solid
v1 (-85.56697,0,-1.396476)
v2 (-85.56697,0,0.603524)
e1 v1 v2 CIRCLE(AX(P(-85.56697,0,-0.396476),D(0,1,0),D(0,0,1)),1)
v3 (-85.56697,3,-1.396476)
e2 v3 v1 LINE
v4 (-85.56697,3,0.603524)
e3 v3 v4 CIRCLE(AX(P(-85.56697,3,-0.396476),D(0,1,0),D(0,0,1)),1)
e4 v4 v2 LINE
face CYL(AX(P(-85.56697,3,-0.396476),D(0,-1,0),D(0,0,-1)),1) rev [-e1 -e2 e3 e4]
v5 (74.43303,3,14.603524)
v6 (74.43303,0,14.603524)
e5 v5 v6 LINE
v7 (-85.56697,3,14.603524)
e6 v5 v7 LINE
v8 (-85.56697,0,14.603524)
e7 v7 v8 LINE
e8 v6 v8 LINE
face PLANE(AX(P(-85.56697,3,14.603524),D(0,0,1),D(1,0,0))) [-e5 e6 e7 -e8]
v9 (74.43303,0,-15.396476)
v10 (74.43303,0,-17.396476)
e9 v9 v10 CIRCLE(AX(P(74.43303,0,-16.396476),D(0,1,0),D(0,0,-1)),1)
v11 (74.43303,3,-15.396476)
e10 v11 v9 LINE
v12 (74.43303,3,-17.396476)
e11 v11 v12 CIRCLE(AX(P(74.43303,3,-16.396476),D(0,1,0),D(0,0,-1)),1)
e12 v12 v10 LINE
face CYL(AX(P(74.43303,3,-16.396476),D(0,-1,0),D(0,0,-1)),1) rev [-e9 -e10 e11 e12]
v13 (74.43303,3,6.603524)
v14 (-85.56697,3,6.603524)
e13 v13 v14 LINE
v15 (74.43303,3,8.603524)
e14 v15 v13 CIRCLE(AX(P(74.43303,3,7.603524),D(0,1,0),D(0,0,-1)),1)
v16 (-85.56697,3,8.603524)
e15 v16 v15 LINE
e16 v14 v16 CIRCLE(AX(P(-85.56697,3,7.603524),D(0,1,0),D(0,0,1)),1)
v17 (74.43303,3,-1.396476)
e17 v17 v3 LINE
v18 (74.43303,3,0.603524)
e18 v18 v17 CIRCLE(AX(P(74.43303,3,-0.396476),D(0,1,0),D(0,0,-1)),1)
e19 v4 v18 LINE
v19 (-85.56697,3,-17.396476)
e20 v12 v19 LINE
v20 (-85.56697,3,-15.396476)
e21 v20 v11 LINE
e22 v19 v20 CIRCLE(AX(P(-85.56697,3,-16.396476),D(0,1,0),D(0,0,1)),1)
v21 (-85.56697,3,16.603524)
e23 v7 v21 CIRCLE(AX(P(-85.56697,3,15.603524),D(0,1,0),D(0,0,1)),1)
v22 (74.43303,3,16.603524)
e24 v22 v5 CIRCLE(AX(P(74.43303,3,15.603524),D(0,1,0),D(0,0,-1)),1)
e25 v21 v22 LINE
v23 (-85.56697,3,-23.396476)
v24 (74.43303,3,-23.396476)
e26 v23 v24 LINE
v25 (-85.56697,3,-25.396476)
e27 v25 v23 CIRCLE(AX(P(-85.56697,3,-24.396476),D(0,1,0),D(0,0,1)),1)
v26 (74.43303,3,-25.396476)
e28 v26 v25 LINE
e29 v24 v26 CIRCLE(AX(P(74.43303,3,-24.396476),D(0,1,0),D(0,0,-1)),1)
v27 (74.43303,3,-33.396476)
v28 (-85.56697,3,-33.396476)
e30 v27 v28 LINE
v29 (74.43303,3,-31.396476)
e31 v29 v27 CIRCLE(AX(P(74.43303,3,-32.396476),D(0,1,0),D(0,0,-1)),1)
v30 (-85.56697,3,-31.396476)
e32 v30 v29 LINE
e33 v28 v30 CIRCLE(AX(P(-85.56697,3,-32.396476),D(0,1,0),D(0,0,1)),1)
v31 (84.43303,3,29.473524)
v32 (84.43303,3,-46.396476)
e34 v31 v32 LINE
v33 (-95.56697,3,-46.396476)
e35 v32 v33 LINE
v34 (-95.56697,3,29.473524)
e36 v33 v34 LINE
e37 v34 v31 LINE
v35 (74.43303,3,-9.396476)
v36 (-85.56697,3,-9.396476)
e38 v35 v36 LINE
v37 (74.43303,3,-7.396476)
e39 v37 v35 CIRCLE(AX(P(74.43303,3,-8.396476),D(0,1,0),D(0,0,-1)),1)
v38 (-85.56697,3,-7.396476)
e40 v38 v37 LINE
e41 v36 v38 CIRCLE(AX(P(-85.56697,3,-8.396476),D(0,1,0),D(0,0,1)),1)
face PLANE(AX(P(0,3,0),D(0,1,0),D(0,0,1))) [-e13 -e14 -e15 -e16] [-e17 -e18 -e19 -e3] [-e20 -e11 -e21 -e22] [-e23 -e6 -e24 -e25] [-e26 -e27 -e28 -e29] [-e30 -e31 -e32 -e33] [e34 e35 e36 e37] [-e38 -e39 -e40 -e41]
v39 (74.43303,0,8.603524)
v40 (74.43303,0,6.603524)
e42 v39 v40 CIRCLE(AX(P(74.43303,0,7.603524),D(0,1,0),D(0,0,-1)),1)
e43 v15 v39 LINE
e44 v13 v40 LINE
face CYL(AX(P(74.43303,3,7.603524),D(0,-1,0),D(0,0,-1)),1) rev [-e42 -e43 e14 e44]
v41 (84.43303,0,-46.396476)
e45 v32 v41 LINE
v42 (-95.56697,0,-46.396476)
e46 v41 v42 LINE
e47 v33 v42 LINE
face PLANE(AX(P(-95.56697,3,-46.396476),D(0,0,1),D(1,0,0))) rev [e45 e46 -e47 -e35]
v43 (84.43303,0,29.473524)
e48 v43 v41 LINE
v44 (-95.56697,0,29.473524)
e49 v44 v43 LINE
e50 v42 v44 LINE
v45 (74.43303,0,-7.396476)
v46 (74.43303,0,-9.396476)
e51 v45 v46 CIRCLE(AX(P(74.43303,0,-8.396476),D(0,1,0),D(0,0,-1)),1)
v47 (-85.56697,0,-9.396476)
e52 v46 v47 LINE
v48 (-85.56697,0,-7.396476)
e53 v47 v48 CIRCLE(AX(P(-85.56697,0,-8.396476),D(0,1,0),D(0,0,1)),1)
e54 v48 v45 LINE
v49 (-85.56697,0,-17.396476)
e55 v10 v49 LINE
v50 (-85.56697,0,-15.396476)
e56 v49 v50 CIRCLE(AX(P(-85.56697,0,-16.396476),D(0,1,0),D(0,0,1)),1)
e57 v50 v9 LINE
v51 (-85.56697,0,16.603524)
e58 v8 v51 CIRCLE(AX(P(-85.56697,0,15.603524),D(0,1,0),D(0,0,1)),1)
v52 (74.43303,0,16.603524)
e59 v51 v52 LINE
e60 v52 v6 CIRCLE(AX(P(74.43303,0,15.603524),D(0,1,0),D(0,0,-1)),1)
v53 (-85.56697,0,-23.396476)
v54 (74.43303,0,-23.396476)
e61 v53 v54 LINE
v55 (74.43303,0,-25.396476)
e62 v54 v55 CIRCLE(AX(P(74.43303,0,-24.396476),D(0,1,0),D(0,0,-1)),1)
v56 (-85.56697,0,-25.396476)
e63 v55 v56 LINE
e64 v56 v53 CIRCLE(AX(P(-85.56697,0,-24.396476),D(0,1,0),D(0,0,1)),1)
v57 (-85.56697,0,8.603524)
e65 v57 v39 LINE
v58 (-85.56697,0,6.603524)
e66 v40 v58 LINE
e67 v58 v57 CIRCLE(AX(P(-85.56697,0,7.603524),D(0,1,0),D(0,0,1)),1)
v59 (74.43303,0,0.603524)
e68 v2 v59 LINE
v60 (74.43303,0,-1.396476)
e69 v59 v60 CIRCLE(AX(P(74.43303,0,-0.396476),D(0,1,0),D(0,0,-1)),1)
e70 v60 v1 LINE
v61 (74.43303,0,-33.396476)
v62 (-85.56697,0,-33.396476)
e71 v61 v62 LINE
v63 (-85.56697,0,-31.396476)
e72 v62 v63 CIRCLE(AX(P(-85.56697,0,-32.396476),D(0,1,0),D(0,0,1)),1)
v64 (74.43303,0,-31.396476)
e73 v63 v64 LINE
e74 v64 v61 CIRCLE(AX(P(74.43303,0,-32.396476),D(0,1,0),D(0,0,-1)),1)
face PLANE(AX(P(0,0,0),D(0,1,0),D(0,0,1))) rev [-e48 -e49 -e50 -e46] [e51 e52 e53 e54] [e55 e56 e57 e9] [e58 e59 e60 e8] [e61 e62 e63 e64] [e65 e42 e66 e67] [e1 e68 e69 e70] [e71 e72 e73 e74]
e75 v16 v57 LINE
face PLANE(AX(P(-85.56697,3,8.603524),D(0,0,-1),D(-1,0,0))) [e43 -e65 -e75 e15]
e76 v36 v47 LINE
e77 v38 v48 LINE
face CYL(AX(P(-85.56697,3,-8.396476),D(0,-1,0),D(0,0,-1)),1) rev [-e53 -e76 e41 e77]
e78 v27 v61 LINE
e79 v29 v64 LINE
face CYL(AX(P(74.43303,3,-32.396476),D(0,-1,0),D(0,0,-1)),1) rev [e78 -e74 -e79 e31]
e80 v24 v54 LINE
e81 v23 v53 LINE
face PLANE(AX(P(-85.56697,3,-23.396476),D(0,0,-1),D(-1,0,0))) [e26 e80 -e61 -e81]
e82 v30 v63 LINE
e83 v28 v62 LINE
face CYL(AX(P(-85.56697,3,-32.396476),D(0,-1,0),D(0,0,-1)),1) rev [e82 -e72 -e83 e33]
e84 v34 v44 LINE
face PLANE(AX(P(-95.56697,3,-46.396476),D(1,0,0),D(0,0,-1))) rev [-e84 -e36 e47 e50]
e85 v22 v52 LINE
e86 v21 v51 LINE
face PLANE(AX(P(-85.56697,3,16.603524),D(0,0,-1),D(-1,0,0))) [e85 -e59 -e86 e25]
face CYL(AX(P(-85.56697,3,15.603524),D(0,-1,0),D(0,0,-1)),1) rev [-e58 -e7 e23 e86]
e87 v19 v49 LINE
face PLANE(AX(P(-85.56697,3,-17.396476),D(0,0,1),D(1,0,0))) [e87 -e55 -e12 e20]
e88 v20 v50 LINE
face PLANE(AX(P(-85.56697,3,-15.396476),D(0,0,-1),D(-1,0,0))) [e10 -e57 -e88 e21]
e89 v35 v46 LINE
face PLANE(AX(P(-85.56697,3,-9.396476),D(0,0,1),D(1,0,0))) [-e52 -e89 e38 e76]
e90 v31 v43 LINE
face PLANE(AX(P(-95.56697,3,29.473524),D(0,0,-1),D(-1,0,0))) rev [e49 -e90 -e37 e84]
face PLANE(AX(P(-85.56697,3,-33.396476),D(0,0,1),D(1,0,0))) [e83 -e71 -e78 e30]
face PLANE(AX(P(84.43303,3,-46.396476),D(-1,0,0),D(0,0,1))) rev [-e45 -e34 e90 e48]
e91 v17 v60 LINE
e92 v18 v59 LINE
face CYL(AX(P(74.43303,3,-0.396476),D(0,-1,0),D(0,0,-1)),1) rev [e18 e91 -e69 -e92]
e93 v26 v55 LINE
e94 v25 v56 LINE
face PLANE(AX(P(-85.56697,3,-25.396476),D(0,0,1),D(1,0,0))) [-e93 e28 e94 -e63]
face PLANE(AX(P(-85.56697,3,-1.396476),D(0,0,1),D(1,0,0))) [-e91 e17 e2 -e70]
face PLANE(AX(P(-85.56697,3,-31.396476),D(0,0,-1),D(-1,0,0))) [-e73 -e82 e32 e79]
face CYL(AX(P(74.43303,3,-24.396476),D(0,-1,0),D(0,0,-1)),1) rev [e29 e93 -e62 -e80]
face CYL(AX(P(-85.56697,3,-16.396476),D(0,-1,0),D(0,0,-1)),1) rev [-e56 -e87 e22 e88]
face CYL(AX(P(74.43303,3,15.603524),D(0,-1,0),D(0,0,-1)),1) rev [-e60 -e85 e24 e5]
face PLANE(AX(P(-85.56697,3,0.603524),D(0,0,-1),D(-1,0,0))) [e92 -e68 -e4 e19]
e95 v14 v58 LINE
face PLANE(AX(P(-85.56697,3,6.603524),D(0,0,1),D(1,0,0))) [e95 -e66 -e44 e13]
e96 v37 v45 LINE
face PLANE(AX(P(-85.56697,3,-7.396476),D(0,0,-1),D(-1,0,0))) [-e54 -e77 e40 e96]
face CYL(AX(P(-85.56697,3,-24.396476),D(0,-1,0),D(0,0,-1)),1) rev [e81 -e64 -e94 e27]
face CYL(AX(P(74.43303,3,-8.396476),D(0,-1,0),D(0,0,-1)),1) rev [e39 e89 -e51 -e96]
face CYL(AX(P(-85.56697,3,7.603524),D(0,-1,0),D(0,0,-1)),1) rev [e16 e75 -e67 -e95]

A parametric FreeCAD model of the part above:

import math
import FreeCAD as App
import Part
import Sketcher
from FreeCAD import Vector
Q = App.Units.Quantity

doc = App.newDocument("Part")
body = doc.addObject("PartDesign::Body", "Body")

sketch1 = body.newObject("Sketcher::SketchObject", "Sketch")
sketch1.AttachmentSupport = (doc.getObject("XZ_Plane"), [""])
sketch1.MapMode = "FlatFace"
sketch1.addGeometry(Part.LineSegment(Vector(-95.6, -46.4, 0), Vector(-95.6, 29.5, 0)), False)
sketch1.addGeometry(Part.LineSegment(Vector(-95.6, 29.5, 0), Vector(84.4, 29.5, 0)), False)
sketch1.addGeometry(Part.LineSegment(Vector(84.4, 29.5, 0), Vector(84.4, -46.4, 0)), False)
sketch1.addGeometry(Part.LineSegment(Vector(84.4, -46.4, 0), Vector(-95.6, -46.4, 0)), False)
sketch1.addGeometry(Part.ArcOfCircle(Part.Circle(Vector(-85.6, 15.6, 0), Vector(0, 0, 1), 1), math.radians(90), math.radians(270)), False)
sketch1.addGeometry(Part.LineSegment(Vector(-85.6, 14.6, 0), Vector(74.4, 14.6, 0)), False)
sketch1.addGeometry(Part.ArcOfCircle(Part.Circle(Vector(74.4, 15.6, 0), Vector(0, 0, 1), 1), math.radians(-90), math.radians(90)), False)
sketch1.addGeometry(Part.LineSegment(Vector(74.4, 16.6, 0), Vector(-85.6, 16.6, 0)), False)
sketch1.addGeometry(Part.ArcOfCircle(Part.Circle(Vector(-85.6, 7.6, 0), Vector(0, 0, 1), 1), math.radians(90), math.radians(270)), False)
sketch1.addGeometry(Part.LineSegment(Vector(-85.6, 6.6, 0), Vector(74.4, 6.6, 0)), False)
sketch1.addGeometry(Part.ArcOfCircle(Part.Circle(Vector(74.4, 7.6, 0), Vector(0, 0, 1), 1), math.radians(-90), math.radians(90)), False)
sketch1.addGeometry(Part.LineSegment(Vector(74.4, 8.6, 0), Vector(-85.6, 8.6, 0)), False)
sketch1.addGeometry(Part.ArcOfCircle(Part.Circle(Vector(-85.6, -0.4, 0), Vector(0, 0, 1), 1), math.radians(90), math.radians(270)), False)
sketch1.addGeometry(Part.LineSegment(Vector(-85.6, -1.4, 0), Vector(74.4, -1.4, 0)), False)
sketch1.addGeometry(Part.ArcOfCircle(Part.Circle(Vector(74.4, -0.4, 0), Vector(0, 0, 1), 1), math.radians(-90), math.radians(90)), False)
sketch1.addGeometry(Part.LineSegment(Vector(74.4, 0.6, 0), Vector(-85.6, 0.6, 0)), False)
sketch1.addGeometry(Part.ArcOfCircle(Part.Circle(Vector(-85.6, -8.4, 0), Vector(0, 0, 1), 1), math.radians(90), math.radians(270)), False)
sketch1.addGeometry(Part.LineSegment(Vector(-85.6, -9.4, 0), Vector(74.4, -9.4, 0)), False)
sketch1.addGeometry(Part.ArcOfCircle(Part.Circle(Vector(74.4, -8.4, 0), Vector(0, 0, 1), 1), math.radians(-90), math.radians(90)), False)
sketch1.addGeometry(Part.LineSegment(Vector(74.4, -7.4, 0), Vector(-85.6, -7.4, 0)), False)
sketch1.addGeometry(Part.ArcOfCircle(Part.Circle(Vector(-85.6, -16.4, 0), Vector(0, 0, 1), 1), math.radians(90), math.radians(270)), False)
sketch1.addGeometry(Part.LineSegment(Vector(-85.6, -17.4, 0), Vector(74.4, -17.4, 0)), False)
sketch1.addGeometry(Part.ArcOfCircle(Part.Circle(Vector(74.4, -16.4, 0), Vector(0, 0, 1), 1), math.radians(-90), math.radians(90)), False)
sketch1.addGeometry(Part.LineSegment(Vector(74.4, -15.4, 0), Vector(-85.6, -15.4, 0)), False)
sketch1.addGeometry(Part.ArcOfCircle(Part.Circle(Vector(-85.6, -24.4, 0), Vector(0, 0, 1), 1), math.radians(90), math.radians(270)), False)
sketch1.addGeometry(Part.LineSegment(Vector(-85.6, -25.4, 0), Vector(74.4, -25.4, 0)), False)
sketch1.addGeometry(Part.ArcOfCircle(Part.Circle(Vector(74.4, -24.4, 0), Vector(0, 0, 1), 1), math.radians(-90), math.radians(90)), False)
sketch1.addGeometry(Part.LineSegment(Vector(74.4, -23.4, 0), Vector(-85.6, -23.4, 0)), False)
sketch1.addGeometry(Part.ArcOfCircle(Part.Circle(Vector(-85.6, -32.4, 0), Vector(0, 0, 1), 1), math.radians(90), math.radians(270)), False)
sketch1.addGeometry(Part.LineSegment(Vector(-85.6, -33.4, 0), Vector(74.4, -33.4, 0)), False)
sketch1.addGeometry(Part.ArcOfCircle(Part.Circle(Vector(74.4, -32.4, 0), Vector(0, 0, 1), 1), math.radians(-90), math.radians(90)), False)
sketch1.addGeometry(Part.LineSegment(Vector(74.4, -31.4, 0), Vector(-85.6, -31.4, 0)), False)
sketch1.addConstraint(Sketcher.Constraint("Coincident", 0, 2, 1, 1))
sketch1.addConstraint(Sketcher.Constraint("Coincident", 1, 2, 2, 1))
sketch1.addConstraint(Sketcher.Constraint("Coincident", 2, 2, 3, 1))
sketch1.addConstraint(Sketcher.Constraint("Coincident", 3, 2, 0, 1))
sketch1.addConstraint(Sketcher.Constraint("Tangent", 4, 2, 5, 1))
sketch1.addConstraint(Sketcher.Constraint("Tangent", 5, 2, 6, 1))
sketch1.addConstraint(Sketcher.Constraint("Tangent", 6, 2, 7, 1))
sketch1.addConstraint(Sketcher.Constraint("Tangent", 7, 2, 4, 1))
sketch1.addConstraint(Sketcher.Constraint("Tangent", 8, 2, 9, 1))
sketch1.addConstraint(Sketcher.Constraint("Tangent", 9, 2, 10, 1))
sketch1.addConstraint(Sketcher.Constraint("Tangent", 10, 2, 11, 1))
sketch1.addConstraint(Sketcher.Constraint("Tangent", 11, 2, 8, 1))
sketch1.addConstraint(Sketcher.Constraint("Tangent", 12, 2, 13, 1))
sketch1.addConstraint(Sketcher.Constraint("Tangent", 13, 2, 14, 1))
sketch1.addConstraint(Sketcher.Constraint("Tangent", 14, 2, 15, 1))
sketch1.addConstraint(Sketcher.Constraint("Tangent", 15, 2, 12, 1))
sketch1.addConstraint(Sketcher.Constraint("Tangent", 16, 2, 17, 1))
sketch1.addConstraint(Sketcher.Constraint("Tangent", 17, 2, 18, 1))
sketch1.addConstraint(Sketcher.Constraint("Tangent", 18, 2, 19, 1))
sketch1.addConstraint(Sketcher.Constraint("Tangent", 19, 2, 16, 1))
sketch1.addConstraint(Sketcher.Constraint("Tangent", 20, 2, 21, 1))
sketch1.addConstraint(Sketcher.Constraint("Tangent", 21, 2, 22, 1))
sketch1.addConstraint(Sketcher.Constraint("Tangent", 22, 2, 23, 1))
sketch1.addConstraint(Sketcher.Constraint("Tangent", 23, 2, 20, 1))
sketch1.addConstraint(Sketcher.Constraint("Tangent", 24, 2, 25, 1))
sketch1.addConstraint(Sketcher.Constraint("Tangent", 25, 2, 26, 1))
sketch1.addConstraint(Sketcher.Constraint("Tangent", 26, 2, 27, 1))
sketch1.addConstraint(Sketcher.Constraint("Tangent", 27, 2, 24, 1))
sketch1.addConstraint(Sketcher.Constraint("Tangent", 28, 2, 29, 1))
sketch1.addConstraint(Sketcher.Constraint("Tangent", 29, 2, 30, 1))
sketch1.addConstraint(Sketcher.Constraint("Tangent", 30, 2, 31, 1))
sketch1.addConstraint(Sketcher.Constraint("Tangent", 31, 2, 28, 1))
sketch1.addConstraint(Sketcher.Constraint("Vertical", 0))
sketch1.addConstraint(Sketcher.Constraint("Horizontal", 1))
sketch1.addConstraint(Sketcher.Constraint("Vertical", 2))
sketch1.addConstraint(Sketcher.Constraint("Horizontal", 3))
sketch1.addConstraint(Sketcher.Constraint("Horizontal", 5))
sketch1.addConstraint(Sketcher.Constraint("Horizontal", 7))
sketch1.addConstraint(Sketcher.Constraint("Horizontal", 9))
sketch1.addConstraint(Sketcher.Constraint("Horizontal", 11))
sketch1.addConstraint(Sketcher.Constraint("Horizontal", 13))
sketch1.addConstraint(Sketcher.Constraint("Horizontal", 15))
sketch1.addConstraint(Sketcher.Constraint("Horizontal", 17))
sketch1.addConstraint(Sketcher.Constraint("Horizontal", 19))
sketch1.addConstraint(Sketcher.Constraint("Horizontal", 21))
sketch1.addConstraint(Sketcher.Constraint("Horizontal", 23))
sketch1.addConstraint(Sketcher.Constraint("Horizontal", 25))
sketch1.addConstraint(Sketcher.Constraint("Horizontal", 27))
sketch1.addConstraint(Sketcher.Constraint("Horizontal", 29))
sketch1.addConstraint(Sketcher.Constraint("Horizontal", 31))
sketch1.addConstraint(Sketcher.Constraint("Equal", 6, 8))
sketch1.addConstraint(Sketcher.Constraint("Equal", 10, 12))
sketch1.addConstraint(Sketcher.Constraint("Equal", 14, 16))
sketch1.addConstraint(Sketcher.Constraint("Equal", 18, 20))
sketch1.addConstraint(Sketcher.Constraint("Equal", 22, 24))
sketch1.addConstraint(Sketcher.Constraint("Equal", 26, 28))
sketch1.addConstraint(Sketcher.Constraint("Vertical", 4, 3, 8, 3))
sketch1.addConstraint(Sketcher.Constraint("Vertical", 6, 3, 10, 3))
sketch1.addConstraint(Sketcher.Constraint("Vertical", 8, 3, 12, 3))
sketch1.addConstraint(Sketcher.Constraint("Vertical", 10, 3, 14, 3))
sketch1.addConstraint(Sketcher.Constraint("Vertical", 12, 3, 16, 3))
sketch1.addConstraint(Sketcher.Constraint("Vertical", 14, 3, 18, 3))
sketch1.addConstraint(Sketcher.Constraint("Vertical", 16, 3, 20, 3))
sketch1.addConstraint(Sketcher.Constraint("Vertical", 18, 3, 22, 3))
sketch1.addConstraint(Sketcher.Constraint("Vertical", 20, 3, 24, 3))
sketch1.addConstraint(Sketcher.Constraint("Vertical", 22, 3, 26, 3))
sketch1.addConstraint(Sketcher.Constraint("Vertical", 24, 3, 28, 3))
sketch1.addConstraint(Sketcher.Constraint("Vertical", 26, 3, 30, 3))
sketch1.addConstraint(Sketcher.Constraint("Radius", 4, Q("1 mm")))
sketch1.addConstraint(Sketcher.Constraint("DistanceX", 1, 1, 1, 2, Q("180 mm")))
sketch1.addConstraint(Sketcher.Constraint("DistanceX", 5, 1, 5, 2, Q("160 mm")))
sketch1.addConstraint(Sketcher.Constraint("DistanceY", 8, 3, 4, 3, Q("8 mm")))
sketch1.addConstraint(Sketcher.Constraint("DistanceY", 12, 3, 8, 3, Q("8 mm")))
sketch1.addConstraint(Sketcher.Constraint("DistanceY", 16, 3, 12, 3, Q("8 mm")))
sketch1.addConstraint(Sketcher.Constraint("DistanceY", 20, 3, 16, 3, Q("8 mm")))
sketch1.addConstraint(Sketcher.Constraint("DistanceY", 24, 3, 20, 3, Q("8 mm")))
sketch1.addConstraint(Sketcher.Constraint("DistanceY", 28, 3, 24, 3, Q("8 mm")))
sketch1.addConstraint(Sketcher.Constraint("DistanceX", 0, 2, 4, 3, Q("10 mm")))
sketch1.addConstraint(Sketcher.Constraint("DistanceY", 2, 2, 30, 3, Q("14 mm")))
sketch1.addConstraint(Sketcher.Constraint("DistanceY", 0, 1, 0, 2, Q("75.87 mm")))
sketch1.addConstraint(Sketcher.Constraint("DistanceX", 4, 3, -1, 1, Q("85.56697 mm")))
sketch1.addConstraint(Sketcher.Constraint("DistanceY", -1, 1, 4, 3, Q("15.603524 mm")))
pad1 = body.newObject("PartDesign::Pad", "Pad")
pad1.Profile = sketch1
pad1.Length = 3
pad1.Reversed = True

doc.recompute()
